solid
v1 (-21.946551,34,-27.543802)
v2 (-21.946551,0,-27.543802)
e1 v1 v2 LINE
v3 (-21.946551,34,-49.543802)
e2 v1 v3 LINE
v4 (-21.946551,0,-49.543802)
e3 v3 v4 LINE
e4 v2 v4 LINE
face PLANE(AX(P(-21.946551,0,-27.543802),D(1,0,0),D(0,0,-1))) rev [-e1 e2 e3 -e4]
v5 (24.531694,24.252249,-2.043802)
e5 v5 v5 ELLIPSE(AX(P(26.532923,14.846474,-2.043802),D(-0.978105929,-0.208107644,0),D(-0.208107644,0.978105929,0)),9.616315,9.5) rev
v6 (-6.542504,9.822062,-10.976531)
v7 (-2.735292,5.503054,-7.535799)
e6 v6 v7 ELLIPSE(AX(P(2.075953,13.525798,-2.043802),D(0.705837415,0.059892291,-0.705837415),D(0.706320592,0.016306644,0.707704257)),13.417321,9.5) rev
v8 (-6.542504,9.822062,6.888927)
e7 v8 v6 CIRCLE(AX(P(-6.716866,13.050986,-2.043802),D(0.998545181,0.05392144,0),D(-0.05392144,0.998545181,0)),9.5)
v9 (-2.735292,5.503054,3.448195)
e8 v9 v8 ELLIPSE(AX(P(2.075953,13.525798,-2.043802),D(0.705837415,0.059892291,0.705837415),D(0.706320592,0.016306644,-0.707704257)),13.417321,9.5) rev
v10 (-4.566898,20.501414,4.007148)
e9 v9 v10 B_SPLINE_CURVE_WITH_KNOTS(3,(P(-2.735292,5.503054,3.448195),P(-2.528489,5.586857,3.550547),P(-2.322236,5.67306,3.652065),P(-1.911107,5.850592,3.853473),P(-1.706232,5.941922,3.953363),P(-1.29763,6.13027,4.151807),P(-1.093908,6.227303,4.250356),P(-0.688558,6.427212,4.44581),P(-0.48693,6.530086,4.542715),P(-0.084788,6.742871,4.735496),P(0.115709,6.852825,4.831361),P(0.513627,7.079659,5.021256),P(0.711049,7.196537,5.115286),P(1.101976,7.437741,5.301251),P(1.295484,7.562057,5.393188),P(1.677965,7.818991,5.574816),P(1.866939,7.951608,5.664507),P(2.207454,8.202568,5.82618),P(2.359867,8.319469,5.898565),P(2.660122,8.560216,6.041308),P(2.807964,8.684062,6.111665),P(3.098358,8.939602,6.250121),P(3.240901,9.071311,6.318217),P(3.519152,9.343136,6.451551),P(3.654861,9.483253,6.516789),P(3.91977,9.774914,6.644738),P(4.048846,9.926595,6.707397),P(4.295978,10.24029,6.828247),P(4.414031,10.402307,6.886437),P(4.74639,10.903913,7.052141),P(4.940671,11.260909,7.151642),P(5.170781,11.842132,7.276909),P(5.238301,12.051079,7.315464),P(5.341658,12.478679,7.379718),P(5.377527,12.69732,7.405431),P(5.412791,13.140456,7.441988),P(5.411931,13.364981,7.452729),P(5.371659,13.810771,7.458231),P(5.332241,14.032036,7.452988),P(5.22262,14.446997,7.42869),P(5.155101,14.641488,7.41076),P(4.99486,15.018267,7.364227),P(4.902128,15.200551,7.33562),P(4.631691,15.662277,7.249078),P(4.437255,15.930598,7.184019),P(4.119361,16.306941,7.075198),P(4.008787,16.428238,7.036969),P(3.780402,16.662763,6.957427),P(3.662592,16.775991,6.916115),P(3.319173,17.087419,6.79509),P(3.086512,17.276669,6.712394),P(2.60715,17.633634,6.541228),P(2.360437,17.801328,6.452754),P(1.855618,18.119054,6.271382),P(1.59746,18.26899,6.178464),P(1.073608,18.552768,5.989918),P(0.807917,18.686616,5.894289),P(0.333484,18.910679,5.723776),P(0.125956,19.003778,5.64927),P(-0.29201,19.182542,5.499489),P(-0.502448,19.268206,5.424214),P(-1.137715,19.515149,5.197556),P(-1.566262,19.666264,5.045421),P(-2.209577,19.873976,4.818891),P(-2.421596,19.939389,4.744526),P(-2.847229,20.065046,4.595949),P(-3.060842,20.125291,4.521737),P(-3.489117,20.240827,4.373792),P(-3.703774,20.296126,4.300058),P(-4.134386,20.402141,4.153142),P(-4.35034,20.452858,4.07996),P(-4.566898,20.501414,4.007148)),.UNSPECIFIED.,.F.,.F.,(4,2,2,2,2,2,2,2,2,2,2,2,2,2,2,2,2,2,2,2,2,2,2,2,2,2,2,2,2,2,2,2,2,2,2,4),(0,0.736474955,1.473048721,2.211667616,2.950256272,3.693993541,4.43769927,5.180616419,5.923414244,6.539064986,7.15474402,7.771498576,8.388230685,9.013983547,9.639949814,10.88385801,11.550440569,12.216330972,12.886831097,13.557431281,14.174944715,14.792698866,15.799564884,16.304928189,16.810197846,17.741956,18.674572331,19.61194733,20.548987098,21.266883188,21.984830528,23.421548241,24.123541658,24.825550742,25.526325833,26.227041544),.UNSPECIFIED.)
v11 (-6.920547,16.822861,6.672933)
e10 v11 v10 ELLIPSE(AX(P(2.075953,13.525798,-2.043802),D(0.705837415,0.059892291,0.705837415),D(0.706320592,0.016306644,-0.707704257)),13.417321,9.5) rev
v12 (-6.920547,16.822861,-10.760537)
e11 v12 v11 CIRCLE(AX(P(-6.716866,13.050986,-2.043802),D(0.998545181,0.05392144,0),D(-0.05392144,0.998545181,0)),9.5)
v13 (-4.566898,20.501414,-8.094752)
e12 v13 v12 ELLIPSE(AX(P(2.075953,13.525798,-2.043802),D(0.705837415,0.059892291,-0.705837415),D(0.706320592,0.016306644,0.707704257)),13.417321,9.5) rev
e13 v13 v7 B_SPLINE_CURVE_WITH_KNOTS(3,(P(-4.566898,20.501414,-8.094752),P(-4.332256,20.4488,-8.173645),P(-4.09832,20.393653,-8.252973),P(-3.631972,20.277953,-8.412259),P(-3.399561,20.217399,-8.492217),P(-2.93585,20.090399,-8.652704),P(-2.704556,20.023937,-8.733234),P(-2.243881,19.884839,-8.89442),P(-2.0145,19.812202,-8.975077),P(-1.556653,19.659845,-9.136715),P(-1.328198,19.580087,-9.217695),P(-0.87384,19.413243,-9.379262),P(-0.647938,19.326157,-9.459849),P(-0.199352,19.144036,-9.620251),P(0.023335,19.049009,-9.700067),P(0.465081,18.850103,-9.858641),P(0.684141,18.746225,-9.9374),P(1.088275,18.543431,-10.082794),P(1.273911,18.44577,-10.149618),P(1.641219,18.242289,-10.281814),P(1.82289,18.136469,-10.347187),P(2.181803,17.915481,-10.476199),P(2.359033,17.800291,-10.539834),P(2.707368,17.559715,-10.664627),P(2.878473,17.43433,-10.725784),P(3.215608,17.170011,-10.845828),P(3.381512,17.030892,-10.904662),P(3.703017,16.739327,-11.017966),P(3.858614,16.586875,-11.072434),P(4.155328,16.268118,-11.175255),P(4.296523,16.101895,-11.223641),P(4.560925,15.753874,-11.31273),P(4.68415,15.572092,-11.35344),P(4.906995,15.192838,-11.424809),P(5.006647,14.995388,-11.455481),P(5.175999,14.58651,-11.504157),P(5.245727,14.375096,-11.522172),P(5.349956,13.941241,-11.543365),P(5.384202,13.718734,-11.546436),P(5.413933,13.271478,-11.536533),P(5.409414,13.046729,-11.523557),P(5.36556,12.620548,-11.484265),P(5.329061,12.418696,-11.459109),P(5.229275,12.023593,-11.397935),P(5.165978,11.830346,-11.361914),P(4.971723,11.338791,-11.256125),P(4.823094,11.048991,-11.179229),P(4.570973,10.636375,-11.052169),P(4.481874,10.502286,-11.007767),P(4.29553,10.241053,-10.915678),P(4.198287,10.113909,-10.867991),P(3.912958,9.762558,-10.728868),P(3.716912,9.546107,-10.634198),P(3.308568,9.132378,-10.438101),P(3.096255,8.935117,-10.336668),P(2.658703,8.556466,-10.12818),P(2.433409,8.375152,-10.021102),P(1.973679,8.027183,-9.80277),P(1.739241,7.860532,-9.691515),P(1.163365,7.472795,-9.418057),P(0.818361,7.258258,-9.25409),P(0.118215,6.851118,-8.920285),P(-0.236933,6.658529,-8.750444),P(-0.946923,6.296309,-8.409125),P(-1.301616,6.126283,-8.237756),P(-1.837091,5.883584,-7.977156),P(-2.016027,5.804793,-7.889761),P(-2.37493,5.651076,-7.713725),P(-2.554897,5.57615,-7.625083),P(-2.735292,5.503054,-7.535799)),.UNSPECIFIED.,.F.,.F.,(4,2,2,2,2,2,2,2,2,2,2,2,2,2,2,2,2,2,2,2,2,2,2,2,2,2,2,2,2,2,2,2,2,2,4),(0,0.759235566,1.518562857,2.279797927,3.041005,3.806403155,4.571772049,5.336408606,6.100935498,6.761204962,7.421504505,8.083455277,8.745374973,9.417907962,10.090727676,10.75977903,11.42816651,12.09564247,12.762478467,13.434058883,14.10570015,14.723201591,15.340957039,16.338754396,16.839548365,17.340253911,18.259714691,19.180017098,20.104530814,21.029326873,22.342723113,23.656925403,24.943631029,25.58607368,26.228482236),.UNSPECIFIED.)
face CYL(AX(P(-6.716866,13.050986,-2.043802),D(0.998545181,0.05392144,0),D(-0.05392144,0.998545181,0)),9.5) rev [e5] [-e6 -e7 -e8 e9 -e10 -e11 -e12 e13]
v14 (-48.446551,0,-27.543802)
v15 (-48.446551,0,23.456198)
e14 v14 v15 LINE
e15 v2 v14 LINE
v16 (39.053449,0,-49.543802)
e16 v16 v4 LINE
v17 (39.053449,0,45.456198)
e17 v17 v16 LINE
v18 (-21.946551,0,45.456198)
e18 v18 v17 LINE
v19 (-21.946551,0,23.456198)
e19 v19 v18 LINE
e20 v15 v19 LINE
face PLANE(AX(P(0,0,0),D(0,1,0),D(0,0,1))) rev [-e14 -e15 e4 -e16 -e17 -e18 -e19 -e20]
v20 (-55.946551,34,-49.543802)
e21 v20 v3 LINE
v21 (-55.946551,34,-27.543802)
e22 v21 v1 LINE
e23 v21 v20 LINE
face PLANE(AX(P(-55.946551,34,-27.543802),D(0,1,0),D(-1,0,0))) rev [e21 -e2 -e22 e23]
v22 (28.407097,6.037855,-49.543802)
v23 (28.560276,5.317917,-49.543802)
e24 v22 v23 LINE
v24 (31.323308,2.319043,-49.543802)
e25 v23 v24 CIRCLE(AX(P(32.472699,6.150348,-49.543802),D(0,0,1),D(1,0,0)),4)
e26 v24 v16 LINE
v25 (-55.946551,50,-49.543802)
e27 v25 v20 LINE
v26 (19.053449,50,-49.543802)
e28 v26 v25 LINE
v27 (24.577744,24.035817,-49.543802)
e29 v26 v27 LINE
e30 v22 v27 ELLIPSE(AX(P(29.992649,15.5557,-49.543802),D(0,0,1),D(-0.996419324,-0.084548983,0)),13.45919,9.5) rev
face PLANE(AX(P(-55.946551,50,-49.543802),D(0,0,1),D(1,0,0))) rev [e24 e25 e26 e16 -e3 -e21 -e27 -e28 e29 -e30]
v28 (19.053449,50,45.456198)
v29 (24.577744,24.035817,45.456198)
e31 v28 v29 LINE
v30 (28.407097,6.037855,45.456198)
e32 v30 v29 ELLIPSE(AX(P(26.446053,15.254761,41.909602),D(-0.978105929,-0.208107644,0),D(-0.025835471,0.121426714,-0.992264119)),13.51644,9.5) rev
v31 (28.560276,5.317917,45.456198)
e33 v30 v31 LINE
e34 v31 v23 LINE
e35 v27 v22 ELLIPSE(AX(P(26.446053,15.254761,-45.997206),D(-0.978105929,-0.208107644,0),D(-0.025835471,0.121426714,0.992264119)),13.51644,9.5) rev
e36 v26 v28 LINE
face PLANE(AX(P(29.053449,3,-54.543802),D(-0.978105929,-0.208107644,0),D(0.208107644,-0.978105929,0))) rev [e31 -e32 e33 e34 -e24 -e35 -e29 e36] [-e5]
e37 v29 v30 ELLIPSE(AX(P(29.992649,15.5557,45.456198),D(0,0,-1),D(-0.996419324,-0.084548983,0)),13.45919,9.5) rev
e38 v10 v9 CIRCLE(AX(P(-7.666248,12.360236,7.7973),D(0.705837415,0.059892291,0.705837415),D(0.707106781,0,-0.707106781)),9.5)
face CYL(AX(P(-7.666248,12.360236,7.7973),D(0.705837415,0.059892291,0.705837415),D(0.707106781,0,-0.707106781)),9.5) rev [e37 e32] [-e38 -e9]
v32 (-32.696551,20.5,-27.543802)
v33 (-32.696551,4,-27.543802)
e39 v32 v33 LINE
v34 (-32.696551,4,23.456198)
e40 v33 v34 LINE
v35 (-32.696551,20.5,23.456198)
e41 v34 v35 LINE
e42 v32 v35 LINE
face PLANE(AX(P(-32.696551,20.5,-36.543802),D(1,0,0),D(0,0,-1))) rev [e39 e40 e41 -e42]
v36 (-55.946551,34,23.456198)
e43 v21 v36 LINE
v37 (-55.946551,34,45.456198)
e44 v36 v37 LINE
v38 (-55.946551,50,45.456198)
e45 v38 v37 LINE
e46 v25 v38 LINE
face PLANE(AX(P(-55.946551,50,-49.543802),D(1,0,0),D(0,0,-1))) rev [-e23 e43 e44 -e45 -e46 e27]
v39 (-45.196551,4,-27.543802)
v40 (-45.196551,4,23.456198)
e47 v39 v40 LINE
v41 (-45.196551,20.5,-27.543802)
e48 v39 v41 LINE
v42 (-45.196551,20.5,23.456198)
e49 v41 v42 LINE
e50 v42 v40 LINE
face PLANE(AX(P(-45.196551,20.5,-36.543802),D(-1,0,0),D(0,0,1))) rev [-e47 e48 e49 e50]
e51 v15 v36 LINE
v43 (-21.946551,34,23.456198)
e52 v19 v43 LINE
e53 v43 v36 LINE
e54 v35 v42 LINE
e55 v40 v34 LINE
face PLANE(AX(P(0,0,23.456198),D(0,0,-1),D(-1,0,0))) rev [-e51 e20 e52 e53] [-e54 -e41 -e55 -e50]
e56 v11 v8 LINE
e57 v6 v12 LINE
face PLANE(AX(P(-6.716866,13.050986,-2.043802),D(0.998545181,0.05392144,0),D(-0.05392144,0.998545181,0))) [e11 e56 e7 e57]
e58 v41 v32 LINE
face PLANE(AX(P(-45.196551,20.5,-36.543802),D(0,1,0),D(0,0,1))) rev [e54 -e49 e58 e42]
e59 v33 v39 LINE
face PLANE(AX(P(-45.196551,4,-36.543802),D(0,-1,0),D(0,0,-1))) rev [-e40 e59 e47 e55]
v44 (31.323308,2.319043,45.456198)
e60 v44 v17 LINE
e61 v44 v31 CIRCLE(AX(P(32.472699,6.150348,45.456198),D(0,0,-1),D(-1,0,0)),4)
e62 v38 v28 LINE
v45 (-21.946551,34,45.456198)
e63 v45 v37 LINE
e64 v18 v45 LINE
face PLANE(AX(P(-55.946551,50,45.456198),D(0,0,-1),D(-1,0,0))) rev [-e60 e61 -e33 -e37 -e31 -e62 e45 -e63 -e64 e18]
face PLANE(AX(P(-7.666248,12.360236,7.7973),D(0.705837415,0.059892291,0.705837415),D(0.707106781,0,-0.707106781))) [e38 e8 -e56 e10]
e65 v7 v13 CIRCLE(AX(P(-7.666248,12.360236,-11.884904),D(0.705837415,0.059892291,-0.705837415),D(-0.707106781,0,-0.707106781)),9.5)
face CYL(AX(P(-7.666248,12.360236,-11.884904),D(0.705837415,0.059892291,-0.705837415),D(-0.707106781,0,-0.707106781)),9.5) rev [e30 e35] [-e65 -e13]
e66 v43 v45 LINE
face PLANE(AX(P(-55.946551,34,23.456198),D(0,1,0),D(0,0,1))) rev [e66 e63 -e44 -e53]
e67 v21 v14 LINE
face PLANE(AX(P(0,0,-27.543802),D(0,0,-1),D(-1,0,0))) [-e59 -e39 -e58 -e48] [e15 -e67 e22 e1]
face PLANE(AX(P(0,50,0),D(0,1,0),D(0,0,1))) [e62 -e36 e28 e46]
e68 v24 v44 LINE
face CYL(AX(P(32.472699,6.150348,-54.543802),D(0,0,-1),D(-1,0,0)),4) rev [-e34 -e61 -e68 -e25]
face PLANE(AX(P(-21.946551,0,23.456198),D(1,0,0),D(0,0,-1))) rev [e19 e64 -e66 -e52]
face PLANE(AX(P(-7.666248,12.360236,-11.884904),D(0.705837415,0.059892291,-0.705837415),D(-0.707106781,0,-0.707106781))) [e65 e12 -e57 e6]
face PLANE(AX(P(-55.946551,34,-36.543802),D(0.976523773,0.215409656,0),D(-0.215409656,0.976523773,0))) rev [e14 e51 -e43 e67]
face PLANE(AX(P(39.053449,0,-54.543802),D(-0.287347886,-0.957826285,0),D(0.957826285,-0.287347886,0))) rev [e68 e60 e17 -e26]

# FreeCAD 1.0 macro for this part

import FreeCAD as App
import Part
import Sketcher
from FreeCAD import Vector


def edges_at(feature, points):
    """Names of the edges that pass closest to the given points."""
    edges = feature.Shape.Edges
    near = lambda p: min(range(len(edges)), key=lambda i: edges[i].distToShape(Part.Vertex(*p))[0])
    return sorted({f"Edge{near(p) + 1}" for p in points})

doc = App.newDocument("Part")
body = doc.addObject("PartDesign::Body", "Body")

sketch1 = doc.addObject("Sketcher::SketchObject", "Sketch")
body.addObject(sketch1)
sketch1.AttachmentSupport = (doc.XZ_Plane, [""])
sketch1.MapMode = "FlatFace"
sketch1.addGeometry(Part.LineSegment(Vector(-56, -50, 0), Vector(-56, 45, 0)), False)
sketch1.addGeometry(Part.LineSegment(Vector(-56, 45, 0), Vector(39, 45, 0)), False)
sketch1.addGeometry(Part.LineSegment(Vector(39, 45, 0), Vector(39, -50, 0)), False)
sketch1.addGeometry(Part.LineSegment(Vector(39, -50, 0), Vector(-56, -50, 0)), False)
sketch1.addConstraint(Sketcher.Constraint("Coincident", 0, 2, 1, 1))
sketch1.addConstraint(Sketcher.Constraint("Coincident", 1, 2, 2, 1))
sketch1.addConstraint(Sketcher.Constraint("Coincident", 2, 2, 3, 1))
sketch1.addConstraint(Sketcher.Constraint("Coincident", 3, 2, 0, 1))
sketch1.addConstraint(Sketcher.Constraint("Vertical", 0))
sketch1.addConstraint(Sketcher.Constraint("Horizontal", 1))
sketch1.addConstraint(Sketcher.Constraint("Vertical", 2))
sketch1.addConstraint(Sketcher.Constraint("Horizontal", 3))
sketch1.addConstraint(Sketcher.Constraint("Equal", 3, 0))
sketch1.addConstraint(Sketcher.Constraint("DistanceX", 1, 1, 1, 2, 95.0))
sketch1.addConstraint(Sketcher.Constraint("DistanceY", -1, 1, 0, 2, 45.456198))
sketch1.addConstraint(Sketcher.Constraint("DistanceX", 0, 2, -1, 1, 55.946551))
pad1 = doc.addObject("PartDesign::Pad", "Pad")
body.addObject(pad1)
pad1.Profile = sketch1
pad1.Length = 50
pad1.Reversed = True

sketch2 = doc.addObject("Sketcher::SketchObject", "Sketch001")
body.addObject(sketch2)
sketch2.AttachmentSupport = (doc.XY_Plane, [""])
sketch2.MapMode = "FlatFace"
sketch2.AttachmentOffset = App.Placement(Vector(0, 0, 45.456198), App.Rotation())
sketch2.addGeometry(Part.LineSegment(Vector(36.4, 50, 0), Vector(39.1, 0, 0)), False)
sketch2.addGeometry(Part.LineSegment(Vector(39.1, 0, 0), Vector(39.1, 50, 0)), False)
sketch2.addGeometry(Part.LineSegment(Vector(39.1, 50, 0), Vector(36.4, 50, 0)), False)
sketch2.addConstraint(Sketcher.Constraint("Coincident", 0, 2, 1, 1))
sketch2.addConstraint(Sketcher.Constraint("Coincident", 1, 2, 2, 1))
sketch2.addConstraint(Sketcher.Constraint("Coincident", 2, 2, 0, 1))
sketch2.addConstraint(Sketcher.Constraint("Vertical", 1))
sketch2.addConstraint(Sketcher.Constraint("Horizontal", 2))
sketch2.addConstraint(Sketcher.Constraint("PointOnObject", 0, 2, -1))
sketch2.addConstraint(Sketcher.Constraint("DistanceY", 1, 1, 1, 2, 50.0))
sketch2.addConstraint(Sketcher.Constraint("DistanceX", 2, 2, 2, 1, 2.7))
sketch2.addConstraint(Sketcher.Constraint("DistanceX", -1, 1, 0, 2, 39.053449))
pocket1 = doc.addObject("PartDesign::Pocket", "Pocket")
body.addObject(pocket1)
pocket1.Profile = sketch2
pocket1.Length = 100

sketch3 = doc.addObject("Sketcher::SketchObject", "Sketch002")
body.addObject(sketch3)
sketch3.Placement = App.Placement(Vector(38.939901, 2.102755, 0), App.Rotation(Vector(0, 0, -1), Vector(-0.05392144, 0.998545181, 0), Vector(0.998545181, 0.05392144, 0), "ZXY"))
sketch3.addGeometry(Part.Circle(Vector(2, 13, 0), Vector(0, 0, 1), 10), False)
sketch3.addConstraint(Sketcher.Constraint("Diameter", 0, 19.0))
sketch3.addConstraint(Sketcher.Constraint("DistanceX", -1, 1, 0, 3, 2.043802))
sketch3.addConstraint(Sketcher.Constraint("DistanceY", -1, 1, 0, 3, 13.394182))
pocket2 = doc.addObject("PartDesign::Pocket", "Pocket001")
body.addObject(pocket2)
pocket2.Profile = sketch3
pocket2.Length = 45

sketch4 = doc.addObject("Sketcher::SketchObject", "Sketch003")
body.addObject(sketch4)
sketch4.AttachmentSupport = (doc.XZ_Plane, [""])
sketch4.MapMode = "FlatFace"
sketch4.AttachmentOffset = App.Placement(Vector(0, 0, -50), App.Rotation())
sketch4.addGeometry(Part.LineSegment(Vector(39, -30, 0), Vector(39, -50, 0)), False)
sketch4.addGeometry(Part.LineSegment(Vector(39, -50, 0), Vector(19, -50, 0)), False)
sketch4.addGeometry(Part.LineSegment(Vector(19, -50, 0), Vector(39, -30, 0)), False)
sketch4.addGeometry(Part.LineSegment(Vector(39, 45, 0), Vector(39, 25, 0)), False)
sketch4.addGeometry(Part.LineSegment(Vector(39, 25, 0), Vector(19, 45, 0)), False)
sketch4.addGeometry(Part.LineSegment(Vector(19, 45, 0), Vector(39, 45, 0)), False)
sketch4.addConstraint(Sketcher.Constraint("Coincident", 0, 2, 1, 1))
sketch4.addConstraint(Sketcher.Constraint("Coincident", 1, 2, 2, 1))
sketch4.addConstraint(Sketcher.Constraint("Coincident", 2, 2, 0, 1))
sketch4.addConstraint(Sketcher.Constraint("Coincident", 3, 2, 4, 1))
sketch4.addConstraint(Sketcher.Constraint("Coincident", 4, 2, 5, 1))
sketch4.addConstraint(Sketcher.Constraint("Coincident", 5, 2, 3, 1))
sketch4.addConstraint(Sketcher.Constraint("Vertical", 0))
sketch4.addConstraint(Sketcher.Constraint("Horizontal", 1))
sketch4.addConstraint(Sketcher.Constraint("Vertical", 3))
sketch4.addConstraint(Sketcher.Constraint("Horizontal", 5))
sketch4.addConstraint(Sketcher.Constraint("Perpendicular", 2, 4))
sketch4.addConstraint(Sketcher.Constraint("Vertical", 2, 2, 3, 2))
sketch4.addConstraint(Sketcher.Constraint("Vertical", 1, 2, 4, 2))
sketch4.addConstraint(Sketcher.Constraint("Equal", 5, 0))
sketch4.addConstraint(Sketcher.Constraint("DistanceX", 1, 2, 1, 1, 20.0))
sketch4.addConstraint(Sketcher.Constraint("DistanceY", 2, 2, 3, 2, 55.0))
sketch4.addConstraint(Sketcher.Constraint("DistanceY", 0, 2, -1, 1, 49.543802))
sketch4.addConstraint(Sketcher.Constraint("DistanceX", -1, 1, 0, 2, 39.053449))
pocket3 = doc.addObject("PartDesign::Pocket", "Pocket002")
body.addObject(pocket3)
pocket3.Profile = sketch4
pocket3.Length = 45
pocket3.Reversed = True

sketch5 = doc.addObject("Sketcher::SketchObject", "Sketch004")
body.addObject(sketch5)
sketch5.AttachmentSupport = (doc.XZ_Plane, [""])
sketch5.MapMode = "FlatFace"
sketch5.AttachmentOffset = App.Placement(Vector(0, 0, -50), App.Rotation())
sketch5.addGeometry(Part.LineSegment(Vector(19, 45, 0), Vector(13, 39, 0)), False)
sketch5.addGeometry(Part.LineSegment(Vector(13, 39, 0), Vector(7, 45, 0)), False)
sketch5.addGeometry(Part.LineSegment(Vector(7, 45, 0), Vector(19, 45, 0)), False)
sketch5.addGeometry(Part.LineSegment(Vector(13, -43, 0), Vector(19, -50, 0)), False)
sketch5.addGeometry(Part.LineSegment(Vector(19, -50, 0), Vector(7, -50, 0)), False)
sketch5.addGeometry(Part.LineSegment(Vector(7, -50, 0), Vector(13, -43, 0)), False)
sketch5.addConstraint(Sketcher.Constraint("Coincident", 0, 2, 1, 1))
sketch5.addConstraint(Sketcher.Constraint("Coincident", 1, 2, 2, 1))
sketch5.addConstraint(Sketcher.Constraint("Coincident", 2, 2, 0, 1))
sketch5.addConstraint(Sketcher.Constraint("Coincident", 3, 2, 4, 1))
sketch5.addConstraint(Sketcher.Constraint("Coincident", 4, 2, 5, 1))
sketch5.addConstraint(Sketcher.Constraint("Coincident", 5, 2, 3, 1))
sketch5.addConstraint(Sketcher.Constraint("Horizontal", 2))
sketch5.addConstraint(Sketcher.Constraint("Horizontal", 4))
sketch5.addConstraint(Sketcher.Constraint("Perpendicular", 0, 1))
sketch5.addConstraint(Sketcher.Constraint("Parallel", 1, 3))
sketch5.addConstraint(Sketcher.Constraint("Perpendicular", 3, 5))
sketch5.addConstraint(Sketcher.Constraint("Vertical", 2, 2, 3, 2))
sketch5.addConstraint(Sketcher.Constraint("Vertical", 1, 2, 4, 2))
sketch5.addConstraint(Sketcher.Constraint("Vertical", 0, 2, 5, 2))
sketch5.addConstraint(Sketcher.Constraint("DistanceY", 3, 2, 2, 2, 95.0))
sketch5.addConstraint(Sketcher.Constraint("DistanceX", 2, 1, 2, 2, 12.25576))
sketch5.addConstraint(Sketcher.Constraint("DistanceY", -1, 1, 1, 2, 45.456198))
sketch5.addConstraint(Sketcher.Constraint("DistanceX", -1, 1, 0, 2, 12.92557))
pocket4 = doc.addObject("PartDesign::Pocket", "Pocket003")
body.addObject(pocket4)
pocket4.Profile = sketch5
pocket4.Length = 45
pocket4.Reversed = True

sketch6 = doc.addObject("Sketcher::SketchObject", "Sketch005")
body.addObject(sketch6)
sketch6.Placement = App.Placement(Vector(-13.201374, 0, 13.201374), App.Rotation(Vector(0.707106781, 0, 0.707106781), Vector(0, 0.999999999, 0), Vector(-0.707106781, 0, 0.707106781), "ZXY"))
sketch6.addGeometry(Part.LineSegment(Vector(42.9, 50, 0), Vector(45.6, 5, 0)), False)
sketch6.addGeometry(Part.LineSegment(Vector(45.6, 5, 0), Vector(45.6, 50, 0)), False)
sketch6.addGeometry(Part.LineSegment(Vector(45.6, 50, 0), Vector(42.9, 50, 0)), False)
sketch6.addConstraint(Sketcher.Constraint("Coincident", 0, 2, 1, 1))
sketch6.addConstraint(Sketcher.Constraint("Coincident", 1, 2, 2, 1))
sketch6.addConstraint(Sketcher.Constraint("Coincident", 2, 2, 0, 1))
sketch6.addConstraint(Sketcher.Constraint("Vertical", 1))
sketch6.addConstraint(Sketcher.Constraint("Horizontal", 2))
sketch6.addConstraint(Sketcher.Constraint("DistanceY", 1, 1, 1, 2, 45.0))
sketch6.addConstraint(Sketcher.Constraint("DistanceX", 2, 2, 2, 1, 2.7))
sketch6.addConstraint(Sketcher.Constraint("DistanceY", -1, 1, 0, 2, 5.0))
sketch6.addConstraint(Sketcher.Constraint("DistanceX", -1, 1, 0, 2, 45.615209))
pocket5 = doc.addObject("PartDesign::Pocket", "Pocket004")
body.addObject(pocket5)
pocket5.Profile = sketch6
pocket5.Length = 45

sketch7 = doc.addObject("Sketcher::SketchObject", "Sketch006")
body.addObject(sketch7)
sketch7.Placement = App.Placement(Vector(-15.245176, 0, -15.245176), App.Rotation(Vector(-0.707106781, 0, 0.707106781), Vector(0, 0.999999999, 0), Vector(-0.707106781, 0, -0.707106781), "ZXY"))
sketch7.addGeometry(Part.LineSegment(Vector(-48.5, 5, 0), Vector(-45.8, 50, 0)), False)
sketch7.addGeometry(Part.LineSegment(Vector(-45.8, 50, 0), Vector(-48.5, 50, 0)), False)
sketch7.addGeometry(Part.LineSegment(Vector(-48.5, 50, 0), Vector(-48.5, 5, 0)), False)
sketch7.addConstraint(Sketcher.Constraint("Coincident", 0, 2, 1, 1))
sketch7.addConstraint(Sketcher.Constraint("Coincident", 1, 2, 2, 1))
sketch7.addConstraint(Sketcher.Constraint("Coincident", 2, 2, 0, 1))
sketch7.addConstraint(Sketcher.Constraint("Horizontal", 1))
sketch7.addConstraint(Sketcher.Constraint("Vertical", 2))
sketch7.addConstraint(Sketcher.Constraint("DistanceY", 2, 2, 2, 1, 45.0))
sketch7.addConstraint(Sketcher.Constraint("DistanceX", 1, 2, 1, 1, 2.7))
sketch7.addConstraint(Sketcher.Constraint("DistanceY", -1, 1, 0, 2, 50.0))
sketch7.addConstraint(Sketcher.Constraint("DistanceX", 0, 2, -1, 1, 45.805582))
pocket6 = doc.addObject("PartDesign::Pocket", "Pocket005")
body.addObject(pocket6)
pocket6.Profile = sketch7
pocket6.Length = 45

sketch8 = doc.addObject("Sketcher::SketchObject", "Sketch007")
body.addObject(sketch8)
sketch8.Placement = App.Placement(Vector(34.386965, 2.917831, -34.386965), App.Rotation(Vector(-0.708373873, 0.059677836, -0.70331004), Vector(0, 0.996419324, 0.084548984), Vector(0.705837415, 0.059892291, -0.705837415), "ZXY"))
sketch8.addGeometry(Part.Circle(Vector(15, 11, 0), Vector(0, 0, 1), 10), False)
sketch8.addConstraint(Sketcher.Constraint("Diameter", 0, 19.0))
sketch8.addConstraint(Sketcher.Constraint("DistanceY", -1, 1, 0, 3, 11.311122))
sketch8.addConstraint(Sketcher.Constraint("DistanceX", -1, 1, 0, 3, 14.526975))
pocket7 = doc.addObject("PartDesign::Pocket", "Pocket006")
body.addObject(pocket7)
pocket7.Profile = sketch8
pocket7.Length = 45

sketch9 = doc.addObject("Sketcher::SketchObject", "Sketch008")
body.addObject(sketch9)
sketch9.Placement = App.Placement(Vector(32.350494, 2.74503, 32.350494), App.Rotation(Vector(0.70331004, 0.059677836, -0.708373873), Vector(-0.084548984, 0.996419324, 0), Vector(0.705837415, 0.059892291, 0.705837415), "ZXY"))
sketch9.addGeometry(Part.Circle(Vector(-10, 13, 0), Vector(0, 0, 1), 10), False)
sketch9.addConstraint(Sketcher.Constraint("Diameter", 0, 19.0))
sketch9.addConstraint(Sketcher.Constraint("DistanceX", 0, 3, -1, 1, 10.177521))
sketch9.addConstraint(Sketcher.Constraint("DistanceY", -1, 1, 0, 3, 12.964152))
pocket8 = doc.addObject("PartDesign::Pocket", "Pocket007")
body.addObject(pocket8)
pocket8.Profile = sketch9
pocket8.Length = 45

sketch10 = doc.addObject("Sketcher::SketchObject", "Sketch009")
body.addObject(sketch10)
sketch10.AttachmentSupport = (doc.XZ_Plane, [""])
sketch10.MapMode = "FlatFace"
sketch10.AttachmentOffset = App.Placement(Vector(0, 0, -5), App.Rotation())
sketch10.addGeometry(Part.LineSegment(Vector(7, -50, 0), Vector(7, 45, 0)), False)
sketch10.addGeometry(Part.LineSegment(Vector(7, 45, 0), Vector(39, 45, 0)), False)
sketch10.addGeometry(Part.LineSegment(Vector(39, 45, 0), Vector(39, -50, 0)), False)
sketch10.addGeometry(Part.LineSegment(Vector(39, -50, 0), Vector(7, -50, 0)), False)
sketch10.addConstraint(Sketcher.Constraint("Coincident", 0, 2, 1, 1))
sketch10.addConstraint(Sketcher.Constraint("Coincident", 1, 2, 2, 1))
sketch10.addConstraint(Sketcher.Constraint("Coincident", 2, 2, 3, 1))
sketch10.addConstraint(Sketcher.Constraint("Coincident", 3, 2, 0, 1))
sketch10.addConstraint(Sketcher.Constraint("Vertical", 0))
sketch10.addConstraint(Sketcher.Constraint("Horizontal", 1))
sketch10.addConstraint(Sketcher.Constraint("Vertical", 2))
sketch10.addConstraint(Sketcher.Constraint("Horizontal", 3))
sketch10.addConstraint(Sketcher.Constraint("DistanceY", 0, 1, 0, 2, 95.0))
sketch10.addConstraint(Sketcher.Constraint("DistanceX", 1, 1, 1, 2, 31.98576))
sketch10.addConstraint(Sketcher.Constraint("DistanceY", -1, 1, 0, 2, 45.456198))
sketch10.addConstraint(Sketcher.Constraint("DistanceX", -1, 1, 0, 2, 6.79769))
pad2 = doc.addObject("PartDesign::Pad", "Pad001")
body.addObject(pad2)
pad2.Profile = sketch10
pad2.Length = 45
pad2.Reversed = True

sketch11 = doc.addObject("Sketcher::SketchObject", "Sketch010")
body.addObject(sketch11)
sketch11.AttachmentSupport = (doc.XY_Plane, [""])
sketch11.MapMode = "FlatFace"
sketch11.AttachmentOffset = App.Placement(Vector(0, 0, 45.456198), App.Rotation())
sketch11.addGeometry(Part.LineSegment(Vector(29, 3, 0), Vector(39, 0, 0)), False)
sketch11.addGeometry(Part.LineSegment(Vector(39, 0, 0), Vector(50, 50, 0)), False)
sketch11.addGeometry(Part.LineSegment(Vector(50, 50, 0), Vector(19, 50, 0)), False)
sketch11.addGeometry(Part.LineSegment(Vector(19, 50, 0), Vector(29, 3, 0)), False)
sketch11.addConstraint(Sketcher.Constraint("Coincident", 0, 2, 1, 1))
sketch11.addConstraint(Sketcher.Constraint("Coincident", 1, 2, 2, 1))
sketch11.addConstraint(Sketcher.Constraint("Coincident", 2, 2, 3, 1))
sketch11.addConstraint(Sketcher.Constraint("Coincident", 3, 2, 0, 1))
sketch11.addConstraint(Sketcher.Constraint("Horizontal", 2))
sketch11.addConstraint(Sketcher.Constraint("PointOnObject", 0, 2, -1))
sketch11.addConstraint(Sketcher.Constraint("DistanceY", -1, 1, 1, 2, 50.0))
sketch11.addConstraint(Sketcher.Constraint("DistanceY", -1, 1, 3, 2, 3.0))
sketch11.addConstraint(Sketcher.Constraint("DistanceX", 2, 2, 0, 2, 20.0))
sketch11.addConstraint(Sketcher.Constraint("DistanceX", 3, 2, 0, 2, 10.0))
sketch11.addConstraint(Sketcher.Constraint("DistanceX", 2, 2, 2, 1, 30.691826))
sketch11.addConstraint(Sketcher.Constraint("DistanceX", -1, 1, 0, 2, 39.053449))
pocket9 = doc.addObject("PartDesign::Pocket", "Pocket008")
body.addObject(pocket9)
pocket9.Profile = sketch11
pocket9.Length = 100

sketch12 = doc.addObject("Sketcher::SketchObject", "Sketch011")
body.addObject(sketch12)
sketch12.Placement = App.Placement(Vector(-5.994632, -0.32371, 0), App.Rotation(Vector(0, 0, -1), Vector(-0.05392144, 0.998545181, 0), Vector(0.998545181, 0.05392144, 0), "ZXY"))
sketch12.addGeometry(Part.Circle(Vector(2, 13, 0), Vector(0, 0, 1), 10), False)
sketch12.addConstraint(Sketcher.Constraint("Diameter", 0, 19.0))
sketch12.addConstraint(Sketcher.Constraint("DistanceX", -1, 1, 0, 3, 2.043802))
sketch12.addConstraint(Sketcher.Constraint("DistanceY", -1, 1, 0, 3, 13.394182))
pocket10 = doc.addObject("PartDesign::Pocket", "Pocket009")
body.addObject(pocket10)
pocket10.Profile = sketch12
pocket10.Length = 100
pocket10.Reversed = True

sketch13 = doc.addObject("Sketcher::SketchObject", "Sketch012")
body.addObject(sketch13)
sketch13.Placement = App.Placement(Vector(0.58781, 0.049877, 0.58781), App.Rotation(Vector(0.70331004, 0.059677836, -0.708373873), Vector(-0.084548984, 0.996419324, 0), Vector(0.705837415, 0.059892291, 0.705837415), "ZXY"))
sketch13.addGeometry(Part.Circle(Vector(-10, 13, 0), Vector(0, 0, 1), 10), False)
sketch13.addConstraint(Sketcher.Constraint("Diameter", 0, 19.0))
sketch13.addConstraint(Sketcher.Constraint("DistanceX", 0, 3, -1, 1, 10.177521))
sketch13.addConstraint(Sketcher.Constraint("DistanceY", -1, 1, 0, 3, 12.964152))
pocket11 = doc.addObject("PartDesign::Pocket", "Pocket010")
body.addObject(pocket11)
pocket11.Profile = sketch13
pocket11.Length = 100
pocket11.Reversed = True

sketch14 = doc.addObject("Sketcher::SketchObject", "Sketch013")
body.addObject(sketch14)
sketch14.Placement = App.Placement(Vector(2.624281, 0.222678, -2.624281), App.Rotation(Vector(-0.708373873, 0.059677836, -0.70331004), Vector(0, 0.996419324, 0.084548984), Vector(0.705837415, 0.059892291, -0.705837415), "ZXY"))
sketch14.addGeometry(Part.Circle(Vector(15, 11, 0), Vector(0, 0, 1), 10), False)
sketch14.addConstraint(Sketcher.Constraint("Diameter", 0, 19.0))
sketch14.addConstraint(Sketcher.Constraint("DistanceY", -1, 1, 0, 3, 11.311122))
sketch14.addConstraint(Sketcher.Constraint("DistanceX", -1, 1, 0, 3, 14.526975))
pocket12 = doc.addObject("PartDesign::Pocket", "Pocket011")
body.addObject(pocket12)
pocket12.Profile = sketch14
pocket12.Length = 100
pocket12.Reversed = True
doc.recompute()

fillet = doc.addObject("PartDesign::Fillet", "Fillet")
body.addObject(fillet)
fillet.Base = (pocket12, edges_at(pocket12, [(29.053, 3, -2.044)]))
fillet.Radius = 4

sketch15 = doc.addObject("Sketcher::SketchObject", "Sketch014")
body.addObject(sketch15)
sketch15.AttachmentSupport = (doc.XY_Plane, [""])
sketch15.MapMode = "FlatFace"
sketch15.AttachmentOffset = App.Placement(Vector(0, 0, 45.456198), App.Rotation())
sketch15.addGeometry(Part.LineSegment(Vector(-56, 34, 0), Vector(-56, 0, 0)), False)
sketch15.addGeometry(Part.LineSegment(Vector(-56, 0, 0), Vector(-22, 0, 0)), False)
sketch15.addGeometry(Part.LineSegment(Vector(-22, 0, 0), Vector(-22, 34, 0)), False)
sketch15.addGeometry(Part.LineSegment(Vector(-22, 34, 0), Vector(-56, 34, 0)), False)
sketch15.addConstraint(Sketcher.Constraint("Coincident", 0, 2, 1, 1))
sketch15.addConstraint(Sketcher.Constraint("Coincident", 1, 2, 2, 1))
sketch15.addConstraint(Sketcher.Constraint("Coincident", 2, 2, 3, 1))
sketch15.addConstraint(Sketcher.Constraint("Coincident", 3, 2, 0, 1))
sketch15.addConstraint(Sketcher.Constraint("Vertical", 0))
sketch15.addConstraint(Sketcher.Constraint("Horizontal", 1))
sketch15.addConstraint(Sketcher.Constraint("Vertical", 2))
sketch15.addConstraint(Sketcher.Constraint("Horizontal", 3))
sketch15.addConstraint(Sketcher.Constraint("PointOnObject", 0, 2, -1))
sketch15.addConstraint(Sketcher.Constraint("Equal", 3, 0))
sketch15.addConstraint(Sketcher.Constraint("DistanceX", 1, 1, 1, 2, 34.0))
sketch15.addConstraint(Sketcher.Constraint("DistanceX", 0, 2, -1, 1, 55.946551))
pocket13 = doc.addObject("PartDesign::Pocket", "Pocket012")
body.addObject(pocket13)
pocket13.Profile = sketch15
pocket13.Length = 22

sketch16 = doc.addObject("Sketcher::SketchObject", "Sketch015")
body.addObject(sketch16)
sketch16.AttachmentSupport = (doc.XY_Plane, [""])
sketch16.MapMode = "FlatFace"
sketch16.AttachmentOffset = App.Placement(Vector(0, 0, -49.543802), App.Rotation())
sketch16.addGeometry(Part.LineSegment(Vector(-22, 34, 0), Vector(-22, 0, 0)), False)
sketch16.addGeometry(Part.LineSegment(Vector(-22, 0, 0), Vector(-56, 0, 0)), False)
sketch16.addGeometry(Part.LineSegment(Vector(-56, 0, 0), Vector(-56, 34, 0)), False)
sketch16.addGeometry(Part.LineSegment(Vector(-56, 34, 0), Vector(-22, 34, 0)), False)
sketch16.addConstraint(Sketcher.Constraint("Coincident", 0, 2, 1, 1))
sketch16.addConstraint(Sketcher.Constraint("Coincident", 1, 2, 2, 1))
sketch16.addConstraint(Sketcher.Constraint("Coincident", 2, 2, 3, 1))
sketch16.addConstraint(Sketcher.Constraint("Coincident", 3, 2, 0, 1))
sketch16.addConstraint(Sketcher.Constraint("Vertical", 0))
sketch16.addConstraint(Sketcher.Constraint("Horizontal", 1))
sketch16.addConstraint(Sketcher.Constraint("Vertical", 2))
sketch16.addConstraint(Sketcher.Constraint("Horizontal", 3))
sketch16.addConstraint(Sketcher.Constraint("PointOnObject", 0, 2, -1))
sketch16.addConstraint(Sketcher.Constraint("Equal", 3, 0))
sketch16.addConstraint(Sketcher.Constraint("DistanceX", 1, 2, 1, 1, 34.0))
sketch16.addConstraint(Sketcher.Constraint("DistanceX", 0, 2, -1, 1, 21.946551))
pocket14 = doc.addObject("PartDesign::Pocket", "Pocket013")
body.addObject(pocket14)
pocket14.Profile = sketch16
pocket14.Length = 22
pocket14.Reversed = True

sketch17 = doc.addObject("Sketcher::SketchObject", "Sketch016")
body.addObject(sketch17)
sketch17.AttachmentSupport = (doc.XY_Plane, [""])
sketch17.MapMode = "FlatFace"
sketch17.AttachmentOffset = App.Placement(Vector(0, 0, 23.456198), App.Rotation())
sketch17.addGeometry(Part.LineSegment(Vector(-45, 20, 0), Vector(-45, 4, 0)), False)
sketch17.addGeometry(Part.LineSegment(Vector(-45, 4, 0), Vector(-33, 4, 0)), False)
sketch17.addGeometry(Part.LineSegment(Vector(-33, 4, 0), Vector(-33, 20, 0)), False)
sketch17.addGeometry(Part.LineSegment(Vector(-33, 20, 0), Vector(-45, 20, 0)), False)
sketch17.addConstraint(Sketcher.Constraint("Coincident", 0, 2, 1, 1))
sketch17.addConstraint(Sketcher.Constraint("Coincident", 1, 2, 2, 1))
sketch17.addConstraint(Sketcher.Constraint("Coincident", 2, 2, 3, 1))
sketch17.addConstraint(Sketcher.Constraint("Coincident", 3, 2, 0, 1))
sketch17.addConstraint(Sketcher.Constraint("Vertical", 0))
sketch17.addConstraint(Sketcher.Constraint("Horizontal", 1))
sketch17.addConstraint(Sketcher.Constraint("Vertical", 2))
sketch17.addConstraint(Sketcher.Constraint("Horizontal", 3))
sketch17.addConstraint(Sketcher.Constraint("DistanceX", 1, 1, 1, 2, 12.5))
sketch17.addConstraint(Sketcher.Constraint("DistanceY", 0, 2, 0, 1, 16.5))
sketch17.addConstraint(Sketcher.Constraint("DistanceY", -1, 1, 0, 2, 4.0))
sketch17.addConstraint(Sketcher.Constraint("DistanceX", 0, 2, -1, 1, 45.196551))
pocket15 = doc.addObject("PartDesign::Pocket", "Pocket014")
body.addObject(pocket15)
pocket15.Profile = sketch17
pocket15.Length = 60

sketch18 = doc.addObject("Sketcher::SketchObject", "Sketch017")
body.addObject(sketch18)
sketch18.AttachmentSupport = (doc.XY_Plane, [""])
sketch18.MapMode = "FlatFace"
sketch18.AttachmentOffset = App.Placement(Vector(0, 0, 23.456198), App.Rotation())
sketch18.addGeometry(Part.LineSegment(Vector(-48, 0, 0), Vector(-56, 34, 0)), False)
sketch18.addGeometry(Part.LineSegment(Vector(-56, 34, 0), Vector(-56, 0, 0)), False)
sketch18.addGeometry(Part.LineSegment(Vector(-56, 0, 0), Vector(-48, 0, 0)), False)
sketch18.addConstraint(Sketcher.Constraint("Coincident", 0, 2, 1, 1))
sketch18.addConstraint(Sketcher.Constraint("Coincident", 1, 2, 2, 1))
sketch18.addConstraint(Sketcher.Constraint("Coincident", 2, 2, 0, 1))
sketch18.addConstraint(Sketcher.Constraint("Vertical", 1))
sketch18.addConstraint(Sketcher.Constraint("Horizontal", 2))
sketch18.addConstraint(Sketcher.Constraint("PointOnObject", 1, 2, -1))
sketch18.addConstraint(Sketcher.Constraint("DistanceY", 1, 2, 1, 1, 34.0))
sketch18.addConstraint(Sketcher.Constraint("DistanceX", 2, 1, 2, 2, 7.5))
sketch18.addConstraint(Sketcher.Constraint("DistanceX", 0, 2, -1, 1, 55.946551))
pocket16 = doc.addObject("PartDesign::Pocket", "Pocket015")
body.addObject(pocket16)
pocket16.Profile = sketch18
pocket16.Length = 60

doc.recompute()
